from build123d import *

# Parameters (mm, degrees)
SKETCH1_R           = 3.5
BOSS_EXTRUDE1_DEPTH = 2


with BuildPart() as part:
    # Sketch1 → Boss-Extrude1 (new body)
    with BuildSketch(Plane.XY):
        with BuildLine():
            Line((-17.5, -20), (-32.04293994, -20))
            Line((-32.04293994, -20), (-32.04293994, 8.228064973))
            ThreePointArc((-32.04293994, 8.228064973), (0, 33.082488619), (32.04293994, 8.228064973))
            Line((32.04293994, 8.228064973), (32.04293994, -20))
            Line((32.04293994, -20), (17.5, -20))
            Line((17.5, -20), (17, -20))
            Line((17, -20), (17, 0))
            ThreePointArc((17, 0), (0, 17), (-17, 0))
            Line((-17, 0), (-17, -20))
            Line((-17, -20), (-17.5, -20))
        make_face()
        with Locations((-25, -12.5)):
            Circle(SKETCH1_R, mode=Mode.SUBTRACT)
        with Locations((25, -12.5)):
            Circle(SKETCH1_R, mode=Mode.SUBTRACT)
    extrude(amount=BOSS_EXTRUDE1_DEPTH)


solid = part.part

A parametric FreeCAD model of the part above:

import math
import FreeCAD as App
import Part
import Sketcher
from FreeCAD import Vector
Q = App.Units.Quantity

doc = App.newDocument("Part")
body = doc.addObject("PartDesign::Body", "Body")

sketch1 = doc.addObject("Sketcher::SketchObject", "Sketch")
body.addObject(sketch1)
sketch1.AttachmentSupport = (doc.XY_Plane, [""])
sketch1.MapMode = "FlatFace"
sketch1.addGeometry(Part.LineSegment(Vector(-32, 8.2, 0), Vector(-32, -20, 0)), False)
sketch1.addGeometry(Part.LineSegment(Vector(-32, -20, 0), Vector(-17, -20, 0)), False)
sketch1.addGeometry(Part.LineSegment(Vector(-17, -20, 0), Vector(-17, 0, 0)), False)
sketch1.addGeometry(Part.ArcOfCircle(Part.Circle(Vector(0, 0, 0), Vector(0, 0, 1), 17), math.radians(0), math.radians(180)), False)
sketch1.addGeometry(Part.LineSegment(Vector(17, 0, 0), Vector(17, -20, 0)), False)
sketch1.addGeometry(Part.LineSegment(Vector(17, -20, 0), Vector(32, -20, 0)), False)
sketch1.addGeometry(Part.LineSegment(Vector(32, -20, 0), Vector(32, 8.2, 0)), False)
sketch1.addGeometry(Part.ArcOfCircle(Part.Circle(Vector(0, 0, 0), Vector(0, 0, 1), 33.1), math.radians(14), math.radians(166)), False)
sketch1.addGeometry(Part.Circle(Vector(25, -12.5, 0), Vector(0, 0, 1), 3.5), False)
sketch1.addGeometry(Part.Circle(Vector(-25, -12.5, 0), Vector(0, 0, 1), 3.5), False)
sketch1.addConstraint(Sketcher.Constraint("Coincident", 0, 2, 1, 1))
sketch1.addConstraint(Sketcher.Constraint("Coincident", 1, 2, 2, 1))
sketch1.addConstraint(Sketcher.Constraint("Tangent", 2, 2, 3, 2))
sketch1.addConstraint(Sketcher.Constraint("Tangent", 3, 1, 4, 1))
sketch1.addConstraint(Sketcher.Constraint("Coincident", 4, 2, 5, 1))
sketch1.addConstraint(Sketcher.Constraint("Coincident", 5, 2, 6, 1))
sketch1.addConstraint(Sketcher.Constraint("Coincident", 6, 2, 7, 1))
sketch1.addConstraint(Sketcher.Constraint("Coincident", 7, 2, 0, 1))
sketch1.addConstraint(Sketcher.Constraint("Vertical", 0))
sketch1.addConstraint(Sketcher.Constraint("Horizontal", 1))
sketch1.addConstraint(Sketcher.Constraint("Vertical", 2))
sketch1.addConstraint(Sketcher.Constraint("Vertical", 4))
sketch1.addConstraint(Sketcher.Constraint("Horizontal", 5))
sketch1.addConstraint(Sketcher.Constraint("Vertical", 6))
sketch1.addConstraint(Sketcher.Constraint("Coincident", 3, 3, -1, 1))
sketch1.addConstraint(Sketcher.Constraint("Coincident", 7, 3, -1, 1))
sketch1.addConstraint(Sketcher.Constraint("Equal", 8, 9))
sketch1.addConstraint(Sketcher.Constraint("Symmetric", 8, 3, 9, 3, -2))
sketch1.addConstraint(Sketcher.Constraint("Symmetric", 0, 2, 5, 2, -2))
sketch1.addConstraint(Sketcher.Constraint("Diameter", 8, Q("7 mm")))
sketch1.addConstraint(Sketcher.Constraint("Radius", 3, Q("17 mm")))
sketch1.addConstraint(Sketcher.Constraint("DistanceY", 2, 1, 2, 2, Q("20 mm")))
sketch1.addConstraint(Sketcher.Constraint("DistanceX", -1, 1, 8, 3, Q("25 mm")))
sketch1.addConstraint(Sketcher.Constraint("DistanceY", 8, 3, -1, 1, Q("12.5 mm")))
sketch1.addConstraint(Sketcher.Constraint("Radius", 7, Q("33.082489 mm")))
sketch1.addConstraint(Sketcher.Constraint("DistanceX", 1, 1, 1, 2, Q("15.04294 mm")))
pad1 = doc.addObject("PartDesign::Pad", "Pad")
body.addObject(pad1)
pad1.Profile = sketch1
pad1.Length = 2

doc.recompute()
